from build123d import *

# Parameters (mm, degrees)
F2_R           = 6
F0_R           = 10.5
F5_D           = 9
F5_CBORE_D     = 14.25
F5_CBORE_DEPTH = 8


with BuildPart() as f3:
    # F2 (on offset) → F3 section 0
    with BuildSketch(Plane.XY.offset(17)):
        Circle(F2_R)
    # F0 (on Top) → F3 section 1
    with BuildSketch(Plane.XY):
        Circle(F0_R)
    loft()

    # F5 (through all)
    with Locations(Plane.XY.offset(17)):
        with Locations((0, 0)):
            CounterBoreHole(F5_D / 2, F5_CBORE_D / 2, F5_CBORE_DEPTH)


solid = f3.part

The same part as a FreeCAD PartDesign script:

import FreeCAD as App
import Part
import Sketcher

V = App.Vector

doc = App.newDocument("Part")
body = doc.addObject("PartDesign::Body", "Body")

# Sketch on XY plane
sketch1 = body.newObject("Sketcher::SketchObject", "Sketch")
sketch1.AttachmentSupport = (doc.getObject("XY_Plane"), [""])
sketch1.MapMode = "FlatFace"
sketch1.AttachmentOffset = App.Placement(V(0, 0, 17), App.Rotation())
sketch1.addGeometry(Part.Circle(V(0, 0, 0), V(0, 0, 1), 6), False)
sketch1.addConstraint(Sketcher.Constraint("Coincident", 0, 3, -1, 1))
sketch1.addConstraint(Sketcher.Constraint("Diameter", 0, 12.0))

# Sketch on XY plane
sketch2 = body.newObject("Sketcher::SketchObject", "Sketch001")
sketch2.AttachmentSupport = (doc.getObject("XY_Plane"), [""])
sketch2.MapMode = "FlatFace"
sketch2.addGeometry(Part.Circle(V(0, 0, 0), V(0, 0, 1), 10.5), False)
sketch2.addConstraint(Sketcher.Constraint("Coincident", 0, 3, -1, 1))
sketch2.addConstraint(Sketcher.Constraint("Diameter", 0, 21.0))

additiveloft = body.newObject("PartDesign::AdditiveLoft", "AdditiveLoft")
additiveloft.Profile = sketch1
additiveloft.Sections = [sketch2]

# Sketch on XY plane
sketch3 = body.newObject("Sketcher::SketchObject", "Sketch002")
sketch3.AttachmentSupport = (doc.getObject("XY_Plane"), [""])
sketch3.MapMode = "FlatFace"
sketch3.AttachmentOffset = App.Placement(V(0, 0, 17), App.Rotation())
sketch3.addGeometry(Part.Circle(V(0, 0, 0), V(0, 0, 1), 4.5), False)
sketch3.addConstraint(Sketcher.Constraint("Coincident", 0, 3, -1, 1))
sketch3.addConstraint(Sketcher.Constraint("Diameter", 0, 9.0))
doc.recompute()
hole = body.newObject("PartDesign::Hole", "Hole")
hole.Profile = sketch3
hole.ThreadType = "None"
hole.Diameter = 9
hole.DepthType = "ThroughAll"
hole.HoleCutType = "Counterbore"
hole.HoleCutDiameter = 14.25
hole.HoleCutDepth = 8

doc.recompute()
